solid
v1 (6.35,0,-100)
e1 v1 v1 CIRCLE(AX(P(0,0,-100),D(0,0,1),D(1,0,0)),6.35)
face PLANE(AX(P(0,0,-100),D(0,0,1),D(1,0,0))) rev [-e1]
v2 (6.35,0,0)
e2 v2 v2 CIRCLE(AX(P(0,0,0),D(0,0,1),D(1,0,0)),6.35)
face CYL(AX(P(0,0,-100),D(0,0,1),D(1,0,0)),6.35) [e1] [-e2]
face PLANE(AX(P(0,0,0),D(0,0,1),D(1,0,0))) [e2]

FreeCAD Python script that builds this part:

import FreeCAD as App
import Part
import Sketcher

V = App.Vector

doc = App.newDocument("Part")
body = doc.addObject("PartDesign::Body", "Body")

sketch1 = doc.addObject("Sketcher::SketchObject", "Sketch")
body.addObject(sketch1)
sketch1.AttachmentSupport = (doc.XY_Plane, [""])
sketch1.MapMode = "FlatFace"
sketch1.addGeometry(Part.Circle(V(0, 0, 0), V(0, 0, 1), 6), False)
sketch1.addConstraint(Sketcher.Constraint("Coincident", 0, 3, -1, 1))
sketch1.addConstraint(Sketcher.Constraint("Diameter", 0, 12.7))

sketch2 = doc.addObject("Sketcher::SketchObject", "Sketch001")
body.addObject(sketch2)
sketch2.AttachmentSupport = (doc.XZ_Plane, [""])
sketch2.MapMode = "FlatFace"
sketch2.addGeometry(Part.LineSegment(V(0, 0, 0), V(0, -100, 0)), False)
sketch2.addConstraint(Sketcher.Constraint("Vertical", 0))
sketch2.addConstraint(Sketcher.Constraint("Coincident", 0, 1, -1, 1))
sketch2.addConstraint(Sketcher.Constraint("DistanceY", 0, 2, 0, 1, 100.0))
doc.recompute()

additivepipe = doc.addObject("PartDesign::AdditivePipe", "AdditivePipe")
body.addObject(additivepipe)
additivepipe.Profile = sketch1
additivepipe.Spine = (sketch2, ["Edge1"])

doc.recompute()
